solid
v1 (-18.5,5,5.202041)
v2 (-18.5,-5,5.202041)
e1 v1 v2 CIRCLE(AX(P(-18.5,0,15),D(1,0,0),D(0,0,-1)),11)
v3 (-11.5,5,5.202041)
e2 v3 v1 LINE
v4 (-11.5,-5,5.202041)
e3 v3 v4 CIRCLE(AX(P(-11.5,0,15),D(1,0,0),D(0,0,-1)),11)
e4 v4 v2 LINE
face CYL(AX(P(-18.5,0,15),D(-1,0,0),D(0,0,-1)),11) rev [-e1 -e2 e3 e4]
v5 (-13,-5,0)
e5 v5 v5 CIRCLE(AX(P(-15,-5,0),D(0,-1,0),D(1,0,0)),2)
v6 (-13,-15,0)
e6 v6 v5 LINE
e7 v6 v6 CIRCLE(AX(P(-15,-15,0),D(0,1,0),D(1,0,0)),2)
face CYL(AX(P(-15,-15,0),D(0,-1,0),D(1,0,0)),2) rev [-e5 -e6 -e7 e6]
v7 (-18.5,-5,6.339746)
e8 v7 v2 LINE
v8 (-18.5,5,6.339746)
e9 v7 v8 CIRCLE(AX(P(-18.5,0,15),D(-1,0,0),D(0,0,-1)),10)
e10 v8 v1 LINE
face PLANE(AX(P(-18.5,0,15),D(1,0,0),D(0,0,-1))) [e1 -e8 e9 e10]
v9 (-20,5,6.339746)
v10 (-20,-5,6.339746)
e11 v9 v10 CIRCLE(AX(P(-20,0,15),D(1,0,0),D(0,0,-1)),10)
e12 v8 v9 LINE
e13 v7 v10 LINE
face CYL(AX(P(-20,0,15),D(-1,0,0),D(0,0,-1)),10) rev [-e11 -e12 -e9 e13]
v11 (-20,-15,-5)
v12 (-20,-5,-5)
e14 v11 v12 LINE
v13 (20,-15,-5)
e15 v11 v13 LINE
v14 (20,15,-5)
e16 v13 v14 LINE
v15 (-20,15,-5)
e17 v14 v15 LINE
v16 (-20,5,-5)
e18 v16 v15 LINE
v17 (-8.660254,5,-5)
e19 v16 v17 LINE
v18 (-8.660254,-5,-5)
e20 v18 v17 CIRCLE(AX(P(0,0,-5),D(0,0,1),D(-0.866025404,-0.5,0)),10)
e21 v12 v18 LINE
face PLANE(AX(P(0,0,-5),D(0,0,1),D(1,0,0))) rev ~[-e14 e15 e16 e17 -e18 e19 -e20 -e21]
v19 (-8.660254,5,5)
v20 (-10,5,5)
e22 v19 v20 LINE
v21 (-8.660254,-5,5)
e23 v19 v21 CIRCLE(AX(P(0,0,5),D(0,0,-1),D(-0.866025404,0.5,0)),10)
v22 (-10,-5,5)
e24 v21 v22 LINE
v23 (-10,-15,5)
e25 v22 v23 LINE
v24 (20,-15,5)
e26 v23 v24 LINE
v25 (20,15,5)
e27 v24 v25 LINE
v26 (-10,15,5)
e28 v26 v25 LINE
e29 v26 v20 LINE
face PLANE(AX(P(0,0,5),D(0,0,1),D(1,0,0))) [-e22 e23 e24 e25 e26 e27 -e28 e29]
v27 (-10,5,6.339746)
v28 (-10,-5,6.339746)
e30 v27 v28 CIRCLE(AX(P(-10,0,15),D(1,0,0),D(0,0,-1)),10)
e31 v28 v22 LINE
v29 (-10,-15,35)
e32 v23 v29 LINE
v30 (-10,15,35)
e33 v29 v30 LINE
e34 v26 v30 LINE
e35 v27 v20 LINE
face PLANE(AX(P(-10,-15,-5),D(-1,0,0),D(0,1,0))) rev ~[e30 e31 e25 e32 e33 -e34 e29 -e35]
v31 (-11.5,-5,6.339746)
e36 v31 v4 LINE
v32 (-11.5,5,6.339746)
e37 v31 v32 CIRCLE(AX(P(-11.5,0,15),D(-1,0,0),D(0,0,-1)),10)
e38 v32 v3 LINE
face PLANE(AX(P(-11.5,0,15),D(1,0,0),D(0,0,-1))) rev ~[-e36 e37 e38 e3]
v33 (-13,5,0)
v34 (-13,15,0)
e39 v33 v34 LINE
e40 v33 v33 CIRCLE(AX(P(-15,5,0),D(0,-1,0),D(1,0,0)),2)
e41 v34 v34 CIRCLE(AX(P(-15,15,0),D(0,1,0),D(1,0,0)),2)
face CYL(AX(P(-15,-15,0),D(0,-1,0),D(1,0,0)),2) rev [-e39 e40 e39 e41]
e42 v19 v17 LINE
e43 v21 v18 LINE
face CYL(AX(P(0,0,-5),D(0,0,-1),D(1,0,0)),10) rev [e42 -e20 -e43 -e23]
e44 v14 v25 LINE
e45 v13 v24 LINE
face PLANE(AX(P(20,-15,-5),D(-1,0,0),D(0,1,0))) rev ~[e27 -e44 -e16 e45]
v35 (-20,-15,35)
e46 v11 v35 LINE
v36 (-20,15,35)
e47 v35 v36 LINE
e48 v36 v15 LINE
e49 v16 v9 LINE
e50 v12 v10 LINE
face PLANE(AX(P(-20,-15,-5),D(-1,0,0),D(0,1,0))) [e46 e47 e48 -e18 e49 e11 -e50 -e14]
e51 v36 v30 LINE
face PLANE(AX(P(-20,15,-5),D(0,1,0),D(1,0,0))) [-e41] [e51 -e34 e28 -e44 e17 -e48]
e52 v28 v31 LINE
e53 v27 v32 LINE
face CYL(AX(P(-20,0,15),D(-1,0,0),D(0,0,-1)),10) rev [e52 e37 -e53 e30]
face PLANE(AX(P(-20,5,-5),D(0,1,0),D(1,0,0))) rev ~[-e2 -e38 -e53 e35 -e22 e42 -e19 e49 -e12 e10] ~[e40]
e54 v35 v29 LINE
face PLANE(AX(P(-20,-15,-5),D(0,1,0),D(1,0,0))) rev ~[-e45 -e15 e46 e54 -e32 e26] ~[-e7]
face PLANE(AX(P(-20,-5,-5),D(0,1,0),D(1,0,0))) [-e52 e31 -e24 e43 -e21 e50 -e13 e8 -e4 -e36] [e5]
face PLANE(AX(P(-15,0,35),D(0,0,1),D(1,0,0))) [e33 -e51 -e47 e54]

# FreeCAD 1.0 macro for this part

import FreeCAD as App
import Part
import Sketcher
Q = App.Units.Quantity

doc = App.newDocument("Part")
body = doc.addObject("PartDesign::Body", "Body")

sketch1 = body.newObject("Sketcher::SketchObject", "Sketch")
sketch1.AttachmentSupport = (doc.getObject("XY_Plane"), [""])
sketch1.MapMode = "FlatFace"
sketch1.AttachmentOffset = App.Placement(App.Vector(0, 0, -5), App.Rotation())
sketch1.addGeometry(Part.Circle(App.Vector(0, 0, 0), App.Vector(0, 0, 1), 10), False)
sketch1.addConstraint([
    Sketcher.Constraint("Coincident", 0, 3, -1, 1),
    Sketcher.Constraint("Diameter", 0, Q("20 mm")),
])
pad1 = body.newObject("PartDesign::Pad", "Pad")
pad1.Profile = sketch1
pad1.Length = 10
body2 = doc.addObject("PartDesign::Body", "Body001")

sketch2 = body2.newObject("Sketcher::SketchObject", "Sketch001")
sketch2.AttachmentSupport = (doc.getObject("XY_Plane001"), [""])
sketch2.MapMode = "FlatFace"
sketch2.addGeometry(Part.Circle(App.Vector(0, 0, 0), App.Vector(0, 0, 1), 2), False)
sketch2.addConstraint([
    Sketcher.Constraint("Coincident", 0, 3, -1, 1),
    Sketcher.Constraint("Diameter", 0, Q("4 mm")),
])
pad2 = body2.newObject("PartDesign::Pad", "Pad001")
pad2.Profile = sketch2
pad2.Length = 30
body3 = doc.addObject("PartDesign::Body", "Body002")
doc.recompute()

body2.Placement = App.Placement(App.Vector(0, 0, 0), App.Rotation(App.Vector(1, 0, 0), 270))
boolean = body3.newObject("PartDesign::Boolean", "Boolean")
boolean.Type = "Fuse"
boolean.addObjects([body2])
body4 = doc.addObject("PartDesign::Body", "Body003")
doc.recompute()

body3.Placement = App.Placement(App.Vector(-15, -15, 0), App.Rotation(App.Vector(0, 0, 1), 0))
boolean2 = body4.newObject("PartDesign::Boolean", "Boolean001")
boolean2.Type = "Fuse"
boolean2.addObjects([body3])
body5 = doc.addObject("PartDesign::Body", "Body004")

sketch3 = body5.newObject("Sketcher::SketchObject", "Sketch002")
sketch3.AttachmentSupport = (doc.getObject("XY_Plane004"), [""])
sketch3.MapMode = "FlatFace"
sketch3.addGeometry(Part.Circle(App.Vector(0, 0, 0), App.Vector(0, 0, 1), 11), False)
sketch3.addConstraint([
    Sketcher.Constraint("Coincident", 0, 3, -1, 1),
    Sketcher.Constraint("Diameter", 0, Q("22 mm")),
])
pad3 = body5.newObject("PartDesign::Pad", "Pad002")
pad3.Profile = sketch3
pad3.Length = 7
body6 = doc.addObject("PartDesign::Body", "Body005")
doc.recompute()

body5.Placement = App.Placement(App.Vector(0, 0, 0), App.Rotation(App.Vector(0, 1, 0), 90))
boolean3 = body6.newObject("PartDesign::Boolean", "Boolean002")
boolean3.Type = "Fuse"
boolean3.addObjects([body5])
body7 = doc.addObject("PartDesign::Body", "Body006")
doc.recompute()

body6.Placement = App.Placement(App.Vector(-18.5, 0, 15), App.Rotation(App.Vector(0, 0, 1), 0))
boolean4 = body7.newObject("PartDesign::Boolean", "Boolean003")
boolean4.Type = "Fuse"
boolean4.addObjects([body6])
body8 = doc.addObject("PartDesign::Body", "Body007")

sketch4 = body8.newObject("Sketcher::SketchObject", "Sketch003")
sketch4.AttachmentSupport = (doc.getObject("XY_Plane007"), [""])
sketch4.MapMode = "FlatFace"
sketch4.addGeometry(Part.Circle(App.Vector(0, 0, 0), App.Vector(0, 0, 1), 10), False)
sketch4.addConstraint([
    Sketcher.Constraint("Coincident", 0, 3, -1, 1),
    Sketcher.Constraint("Diameter", 0, Q("20 mm")),
])
pad4 = body8.newObject("PartDesign::Pad", "Pad003")
pad4.Profile = sketch4
pad4.Length = 10
body9 = doc.addObject("PartDesign::Body", "Body008")
doc.recompute()

body8.Placement = App.Placement(App.Vector(0, 0, 0), App.Rotation(App.Vector(0, 1, 0), 90))
boolean5 = body9.newObject("PartDesign::Boolean", "Boolean004")
boolean5.Type = "Fuse"
boolean5.addObjects([body8])
body10 = doc.addObject("PartDesign::Body", "Body009")
doc.recompute()

body9.Placement = App.Placement(App.Vector(-20, 0, 15), App.Rotation(App.Vector(0, 0, 1), 0))
boolean6 = body10.newObject("PartDesign::Boolean", "Boolean005")
boolean6.Type = "Fuse"
boolean6.addObjects([body9])
body11 = doc.addObject("PartDesign::Body", "Body010")

sketch5 = body11.newObject("Sketcher::SketchObject", "Sketch004")
sketch5.AttachmentSupport = (doc.getObject("XY_Plane010"), [""])
sketch5.MapMode = "FlatFace"
sketch5.AttachmentOffset = App.Placement(App.Vector(0, 0, -5), App.Rotation())
sketch5.addGeometry([
    Part.LineSegment(App.Vector(-20, 5, 0), App.Vector(-20, -5, 0)),
    Part.LineSegment(App.Vector(-20, -5, 0), App.Vector(-5, -5, 0)),
    Part.LineSegment(App.Vector(-5, -5, 0), App.Vector(-5, 5, 0)),
    Part.LineSegment(App.Vector(-5, 5, 0), App.Vector(-20, 5, 0)),
], False)
sketch5.addConstraint([
    Sketcher.Constraint("Coincident", 0, 2, 1, 1),
    Sketcher.Constraint("Coincident", 1, 2, 2, 1),
    Sketcher.Constraint("Coincident", 2, 2, 3, 1),
    Sketcher.Constraint("Coincident", 3, 2, 0, 1),
    Sketcher.Constraint("Vertical", 0),
    Sketcher.Constraint("Horizontal", 1),
    Sketcher.Constraint("Vertical", 2),
    Sketcher.Constraint("Horizontal", 3),
    Sketcher.Constraint("DistanceX", 1, 1, 1, 2, Q("15 mm")),
    Sketcher.Constraint("DistanceY", 0, 2, 0, 1, Q("10 mm")),
    Sketcher.Constraint("DistanceX", 0, 2, -1, 1, Q("20 mm")),
    Sketcher.Constraint("DistanceY", 0, 2, -1, 1, Q("5 mm")),
])
pad5 = body11.newObject("PartDesign::Pad", "Pad004")
pad5.Profile = sketch5
pad5.Length = 15
doc.recompute()

boolean7 = body11.newObject("PartDesign::Boolean", "Boolean006")
boolean7.Type = "Fuse"
boolean7.addObjects([body])
doc.recompute()

boolean8 = body11.newObject("PartDesign::Boolean", "Boolean007")
boolean8.Type = "Fuse"
boolean8.addObjects([body4])
doc.recompute()

boolean9 = body11.newObject("PartDesign::Boolean", "Boolean008")
boolean9.Type = "Fuse"
boolean9.addObjects([body7])
doc.recompute()

boolean10 = body11.newObject("PartDesign::Boolean", "Boolean009")
boolean10.Type = "Fuse"
boolean10.addObjects([body10])
body12 = doc.addObject("PartDesign::Body", "Body011")

sketch6 = body12.newObject("Sketcher::SketchObject", "Sketch005")
sketch6.AttachmentSupport = (doc.getObject("XY_Plane011"), [""])
sketch6.MapMode = "FlatFace"
sketch6.AttachmentOffset = App.Placement(App.Vector(0, 0, -5), App.Rotation())
sketch6.addGeometry([
    Part.LineSegment(App.Vector(-20, 15, 0), App.Vector(-20, -15, 0)),
    Part.LineSegment(App.Vector(-20, -15, 0), App.Vector(-10, -15, 0)),
    Part.LineSegment(App.Vector(-10, -15, 0), App.Vector(-10, 15, 0)),
    Part.LineSegment(App.Vector(-10, 15, 0), App.Vector(-20, 15, 0)),
], False)
sketch6.addConstraint([
    Sketcher.Constraint("Coincident", 0, 2, 1, 1),
    Sketcher.Constraint("Coincident", 1, 2, 2, 1),
    Sketcher.Constraint("Coincident", 2, 2, 3, 1),
    Sketcher.Constraint("Coincident", 3, 2, 0, 1),
    Sketcher.Constraint("Vertical", 0),
    Sketcher.Constraint("Horizontal", 1),
    Sketcher.Constraint("Vertical", 2),
    Sketcher.Constraint("Horizontal", 3),
    Sketcher.Constraint("DistanceX", 1, 1, 1, 2, Q("10 mm")),
    Sketcher.Constraint("DistanceY", 0, 2, 0, 1, Q("30 mm")),
    Sketcher.Constraint("DistanceX", 0, 2, -1, 1, Q("20 mm")),
    Sketcher.Constraint("DistanceY", 0, 2, -1, 1, Q("15 mm")),
])
pad6 = body12.newObject("PartDesign::Pad", "Pad005")
pad6.Profile = sketch6
pad6.Length = 40
body13 = doc.addObject("PartDesign::Body", "Body012")

sketch7 = body13.newObject("Sketcher::SketchObject", "Sketch006")
sketch7.AttachmentSupport = (doc.getObject("XY_Plane012"), [""])
sketch7.MapMode = "FlatFace"
sketch7.AttachmentOffset = App.Placement(App.Vector(0, 0, -5), App.Rotation())
sketch7.addGeometry([
    Part.LineSegment(App.Vector(-20, 15, 0), App.Vector(-20, -15, 0)),
    Part.LineSegment(App.Vector(-20, -15, 0), App.Vector(20, -15, 0)),
    Part.LineSegment(App.Vector(20, -15, 0), App.Vector(20, 15, 0)),
    Part.LineSegment(App.Vector(20, 15, 0), App.Vector(-20, 15, 0)),
], False)
sketch7.addConstraint([
    Sketcher.Constraint("Coincident", 0, 2, 1, 1),
    Sketcher.Constraint("Coincident", 1, 2, 2, 1),
    Sketcher.Constraint("Coincident", 2, 2, 3, 1),
    Sketcher.Constraint("Coincident", 3, 2, 0, 1),
    Sketcher.Constraint("Vertical", 0),
    Sketcher.Constraint("Horizontal", 1),
    Sketcher.Constraint("Vertical", 2),
    Sketcher.Constraint("Horizontal", 3),
    Sketcher.Constraint("Symmetric", 0, 2, 2, 2, -1, 1),
    Sketcher.Constraint("DistanceX", 1, 1, 1, 2, Q("40 mm")),
    Sketcher.Constraint("DistanceY", 0, 2, 0, 1, Q("30 mm")),
])
pad7 = body13.newObject("PartDesign::Pad", "Pad006")
pad7.Profile = sketch7
pad7.Length = 10
doc.recompute()

boolean11 = body13.newObject("PartDesign::Boolean", "Boolean010")
boolean11.Type = "Fuse"
boolean11.addObjects([body12])
doc.recompute()

boolean12 = body13.newObject("PartDesign::Boolean", "Boolean011")
boolean12.Type = "Cut"
boolean12.addObjects([body11])

doc.recompute()
